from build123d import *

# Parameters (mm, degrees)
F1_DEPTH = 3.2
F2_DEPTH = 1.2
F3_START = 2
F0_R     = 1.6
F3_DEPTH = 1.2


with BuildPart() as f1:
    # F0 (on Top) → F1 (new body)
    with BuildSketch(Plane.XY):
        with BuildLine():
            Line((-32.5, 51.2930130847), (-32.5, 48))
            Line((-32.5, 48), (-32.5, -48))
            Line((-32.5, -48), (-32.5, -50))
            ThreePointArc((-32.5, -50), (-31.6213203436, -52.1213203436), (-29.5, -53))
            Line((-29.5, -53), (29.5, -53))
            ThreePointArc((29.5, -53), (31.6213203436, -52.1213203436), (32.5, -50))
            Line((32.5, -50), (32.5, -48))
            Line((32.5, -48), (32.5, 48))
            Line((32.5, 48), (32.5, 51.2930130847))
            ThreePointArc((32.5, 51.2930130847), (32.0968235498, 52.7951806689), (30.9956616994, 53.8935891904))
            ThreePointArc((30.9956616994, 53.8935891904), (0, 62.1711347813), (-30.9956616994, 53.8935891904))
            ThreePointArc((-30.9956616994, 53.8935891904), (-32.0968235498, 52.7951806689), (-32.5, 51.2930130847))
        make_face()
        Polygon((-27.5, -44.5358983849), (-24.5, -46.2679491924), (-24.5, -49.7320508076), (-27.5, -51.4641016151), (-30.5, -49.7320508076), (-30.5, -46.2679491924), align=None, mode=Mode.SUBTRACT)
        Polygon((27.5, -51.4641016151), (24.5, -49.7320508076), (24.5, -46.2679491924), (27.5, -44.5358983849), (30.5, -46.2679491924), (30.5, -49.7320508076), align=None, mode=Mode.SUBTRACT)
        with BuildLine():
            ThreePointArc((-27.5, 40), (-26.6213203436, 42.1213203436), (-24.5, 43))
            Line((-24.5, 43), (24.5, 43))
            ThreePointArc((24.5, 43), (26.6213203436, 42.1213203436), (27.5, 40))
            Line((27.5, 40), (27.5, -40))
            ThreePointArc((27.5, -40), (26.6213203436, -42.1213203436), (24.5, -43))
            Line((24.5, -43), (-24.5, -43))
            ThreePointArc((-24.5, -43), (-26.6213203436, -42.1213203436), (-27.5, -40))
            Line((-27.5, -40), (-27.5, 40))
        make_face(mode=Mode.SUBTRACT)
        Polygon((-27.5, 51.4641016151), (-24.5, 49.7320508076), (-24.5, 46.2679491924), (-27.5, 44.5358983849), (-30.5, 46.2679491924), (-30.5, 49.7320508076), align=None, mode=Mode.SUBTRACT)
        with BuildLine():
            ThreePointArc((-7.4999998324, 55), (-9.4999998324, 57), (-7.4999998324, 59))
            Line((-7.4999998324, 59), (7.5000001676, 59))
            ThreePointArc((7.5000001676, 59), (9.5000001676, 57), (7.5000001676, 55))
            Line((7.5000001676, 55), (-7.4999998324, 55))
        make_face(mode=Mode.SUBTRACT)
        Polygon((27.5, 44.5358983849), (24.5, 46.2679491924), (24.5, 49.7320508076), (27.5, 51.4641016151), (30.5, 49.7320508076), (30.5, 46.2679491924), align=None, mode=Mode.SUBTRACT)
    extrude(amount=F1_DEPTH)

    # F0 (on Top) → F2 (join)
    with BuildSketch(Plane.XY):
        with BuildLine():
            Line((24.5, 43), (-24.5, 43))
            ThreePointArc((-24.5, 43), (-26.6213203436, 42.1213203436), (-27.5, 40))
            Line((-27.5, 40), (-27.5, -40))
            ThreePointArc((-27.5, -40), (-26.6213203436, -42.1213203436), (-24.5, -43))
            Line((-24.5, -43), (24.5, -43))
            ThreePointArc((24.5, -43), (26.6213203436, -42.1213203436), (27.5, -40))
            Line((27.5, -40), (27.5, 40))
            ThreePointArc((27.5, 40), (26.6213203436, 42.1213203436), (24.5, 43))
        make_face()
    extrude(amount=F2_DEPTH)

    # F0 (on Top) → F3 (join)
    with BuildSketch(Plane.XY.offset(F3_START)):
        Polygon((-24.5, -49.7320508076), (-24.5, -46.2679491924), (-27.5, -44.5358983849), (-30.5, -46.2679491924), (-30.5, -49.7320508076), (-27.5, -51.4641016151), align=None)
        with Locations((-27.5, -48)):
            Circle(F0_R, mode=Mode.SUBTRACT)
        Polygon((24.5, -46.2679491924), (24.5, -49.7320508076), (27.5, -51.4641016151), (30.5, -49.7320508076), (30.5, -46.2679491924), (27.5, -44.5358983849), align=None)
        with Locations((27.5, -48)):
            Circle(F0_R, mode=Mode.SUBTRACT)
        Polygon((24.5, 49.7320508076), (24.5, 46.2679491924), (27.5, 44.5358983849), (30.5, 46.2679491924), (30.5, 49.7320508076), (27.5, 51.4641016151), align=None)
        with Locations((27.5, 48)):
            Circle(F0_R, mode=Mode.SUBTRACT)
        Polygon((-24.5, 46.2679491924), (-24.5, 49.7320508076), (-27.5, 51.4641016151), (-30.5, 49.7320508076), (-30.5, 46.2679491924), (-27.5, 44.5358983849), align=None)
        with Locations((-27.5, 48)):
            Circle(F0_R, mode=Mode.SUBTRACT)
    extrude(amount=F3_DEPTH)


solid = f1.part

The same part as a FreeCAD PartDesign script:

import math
import FreeCAD as App
import Part
import Sketcher
Q = App.Units.Quantity

doc = App.newDocument("Part")
body = doc.addObject("PartDesign::Body", "Body")

# Sketch on XY plane
sketch1 = doc.addObject("Sketcher::SketchObject", "Sketch")
body.addObject(sketch1)
sketch1.AttachmentSupport = (doc.XY_Plane, [""])
sketch1.MapMode = "FlatFace"
sketch1.addGeometry([
    Part.LineSegment(App.Vector(-32.5, 51.3, 0), App.Vector(-32.5, -50, 0)),  # 0
    Part.ArcOfCircle(Part.Circle(App.Vector(-29.5, -50, 0), App.Vector(0, 0, 1), 3), math.radians(180), math.radians(270)),  # 1
    Part.LineSegment(App.Vector(-29.5, -53, 0), App.Vector(29.5, -53, 0)),  # 2
    Part.ArcOfCircle(Part.Circle(App.Vector(29.5, -50, 0), App.Vector(0, 0, 1), 3), math.radians(-90), math.radians(0)),  # 3
    Part.LineSegment(App.Vector(32.5, -50, 0), App.Vector(32.5, 51.3, 0)),  # 4
    Part.ArcOfCircle(Part.Circle(App.Vector(29.5, 51.3, 0), App.Vector(0, 0, 1), 3), math.radians(0), math.radians(60)),  # 5
    Part.ArcOfCircle(Part.Circle(App.Vector(0, 0, 0), App.Vector(0, 0, 1), 62.2), math.radians(60), math.radians(120)),  # 6
    Part.ArcOfCircle(Part.Circle(App.Vector(-29.5, 51.3, 0), App.Vector(0, 0, 1), 3), math.radians(120), math.radians(180)),  # 7
    Part.LineSegment(App.Vector(-30.5, -46.3, 0), App.Vector(-27.5, -44.5, 0)),  # 8
    Part.LineSegment(App.Vector(-27.5, -44.5, 0), App.Vector(-24.5, -46.3, 0)),  # 9
    Part.LineSegment(App.Vector(-24.5, -46.3, 0), App.Vector(-24.5, -49.7, 0)),  # 10
    Part.LineSegment(App.Vector(-24.5, -49.7, 0), App.Vector(-27.5, -51.5, 0)),  # 11
    Part.LineSegment(App.Vector(-27.5, -51.5, 0), App.Vector(-30.5, -49.7, 0)),  # 12
    Part.LineSegment(App.Vector(-30.5, -49.7, 0), App.Vector(-30.5, -46.3, 0)),  # 13
    Part.LineSegment(App.Vector(30.5, -49.7, 0), App.Vector(27.5, -51.5, 0)),  # 14
    Part.LineSegment(App.Vector(27.5, -51.5, 0), App.Vector(24.5, -49.7, 0)),  # 15
    Part.LineSegment(App.Vector(24.5, -49.7, 0), App.Vector(24.5, -46.3, 0)),  # 16
    Part.LineSegment(App.Vector(24.5, -46.3, 0), App.Vector(27.5, -44.5, 0)),  # 17
    Part.LineSegment(App.Vector(27.5, -44.5, 0), App.Vector(30.5, -46.3, 0)),  # 18
    Part.LineSegment(App.Vector(30.5, -46.3, 0), App.Vector(30.5, -49.7, 0)),  # 19
    Part.LineSegment(App.Vector(-27.5, -40, 0), App.Vector(-27.5, 40, 0)),  # 20
    Part.ArcOfCircle(Part.Circle(App.Vector(-24.5, 40, 0), App.Vector(0, 0, 1), 3), math.radians(90), math.radians(180)),  # 21
    Part.LineSegment(App.Vector(-24.5, 43, 0), App.Vector(24.5, 43, 0)),  # 22
    Part.ArcOfCircle(Part.Circle(App.Vector(24.5, 40, 0), App.Vector(0, 0, 1), 3), math.radians(0), math.radians(90)),  # 23
    Part.LineSegment(App.Vector(27.5, 40, 0), App.Vector(27.5, -40, 0)),  # 24
    Part.ArcOfCircle(Part.Circle(App.Vector(24.5, -40, 0), App.Vector(0, 0, 1), 3), math.radians(-90), math.radians(0)),  # 25
    Part.LineSegment(App.Vector(24.5, -43, 0), App.Vector(-24.5, -43, 0)),  # 26
    Part.ArcOfCircle(Part.Circle(App.Vector(-24.5, -40, 0), App.Vector(0, 0, 1), 3), math.radians(180), math.radians(270)),  # 27
    Part.LineSegment(App.Vector(-30.5, 49.7, 0), App.Vector(-27.5, 51.5, 0)),  # 28
    Part.LineSegment(App.Vector(-27.5, 51.5, 0), App.Vector(-24.5, 49.7, 0)),  # 29
    Part.LineSegment(App.Vector(-24.5, 49.7, 0), App.Vector(-24.5, 46.3, 0)),  # 30
    Part.LineSegment(App.Vector(-24.5, 46.3, 0), App.Vector(-27.5, 44.5, 0)),  # 31
    Part.LineSegment(App.Vector(-27.5, 44.5, 0), App.Vector(-30.5, 46.3, 0)),  # 32
    Part.LineSegment(App.Vector(-30.5, 46.3, 0), App.Vector(-30.5, 49.7, 0)),  # 33
    Part.LineSegment(App.Vector(7.5, 55, 0), App.Vector(-7.5, 55, 0)),  # 34
    Part.ArcOfCircle(Part.Circle(App.Vector(-7.5, 57, 0), App.Vector(0, 0, 1), 2), math.radians(90), math.radians(270)),  # 35
    Part.LineSegment(App.Vector(-7.5, 59, 0), App.Vector(7.5, 59, 0)),  # 36
    Part.ArcOfCircle(Part.Circle(App.Vector(7.5, 57, 0), App.Vector(0, 0, 1), 2), math.radians(-90), math.radians(90)),  # 37
    Part.LineSegment(App.Vector(30.5, 46.3, 0), App.Vector(27.5, 44.5, 0)),  # 38
    Part.LineSegment(App.Vector(27.5, 44.5, 0), App.Vector(24.5, 46.3, 0)),  # 39
    Part.LineSegment(App.Vector(24.5, 46.3, 0), App.Vector(24.5, 49.7, 0)),  # 40
    Part.LineSegment(App.Vector(24.5, 49.7, 0), App.Vector(27.5, 51.5, 0)),  # 41
    Part.LineSegment(App.Vector(27.5, 51.5, 0), App.Vector(30.5, 49.7, 0)),  # 42
    Part.LineSegment(App.Vector(30.5, 49.7, 0), App.Vector(30.5, 46.3, 0)),  # 43
], False)
sketch1.addConstraint([
    Sketcher.Constraint("Tangent", 0, 2, 1, 1),
    Sketcher.Constraint("Tangent", 1, 2, 2, 1),
    Sketcher.Constraint("Tangent", 2, 2, 3, 1),
    Sketcher.Constraint("Tangent", 3, 2, 4, 1),
    Sketcher.Constraint("Tangent", 4, 2, 5, 1),
    Sketcher.Constraint("Tangent", 5, 2, 6, 1),
    Sketcher.Constraint("Tangent", 6, 2, 7, 1),
    Sketcher.Constraint("Tangent", 7, 2, 0, 1),
    Sketcher.Constraint("Coincident", 8, 2, 9, 1),
    Sketcher.Constraint("Coincident", 9, 2, 10, 1),
    Sketcher.Constraint("Coincident", 10, 2, 11, 1),
    Sketcher.Constraint("Coincident", 11, 2, 12, 1),
    Sketcher.Constraint("Coincident", 12, 2, 13, 1),
    Sketcher.Constraint("Coincident", 13, 2, 8, 1),
    Sketcher.Constraint("Coincident", 14, 2, 15, 1),
    Sketcher.Constraint("Coincident", 15, 2, 16, 1),
    Sketcher.Constraint("Coincident", 16, 2, 17, 1),
    Sketcher.Constraint("Coincident", 17, 2, 18, 1),
    Sketcher.Constraint("Coincident", 18, 2, 19, 1),
    Sketcher.Constraint("Coincident", 19, 2, 14, 1),
    Sketcher.Constraint("Tangent", 20, 2, 21, 2),
    Sketcher.Constraint("Tangent", 21, 1, 22, 1),
    Sketcher.Constraint("Tangent", 22, 2, 23, 2),
    Sketcher.Constraint("Tangent", 23, 1, 24, 1),
    Sketcher.Constraint("Tangent", 24, 2, 25, 2),
    Sketcher.Constraint("Tangent", 25, 1, 26, 1),
    Sketcher.Constraint("Tangent", 26, 2, 27, 2),
    Sketcher.Constraint("Tangent", 27, 1, 20, 1),
    Sketcher.Constraint("Coincident", 28, 2, 29, 1),
    Sketcher.Constraint("Coincident", 29, 2, 30, 1),
    Sketcher.Constraint("Coincident", 30, 2, 31, 1),
    Sketcher.Constraint("Coincident", 31, 2, 32, 1),
    Sketcher.Constraint("Coincident", 32, 2, 33, 1),
    Sketcher.Constraint("Coincident", 33, 2, 28, 1),
    Sketcher.Constraint("Tangent", 34, 2, 35, 2),
    Sketcher.Constraint("Tangent", 35, 1, 36, 1),
    Sketcher.Constraint("Tangent", 36, 2, 37, 2),
    Sketcher.Constraint("Tangent", 37, 1, 34, 1),
    Sketcher.Constraint("Coincident", 38, 2, 39, 1),
    Sketcher.Constraint("Coincident", 39, 2, 40, 1),
    Sketcher.Constraint("Coincident", 40, 2, 41, 1),
    Sketcher.Constraint("Coincident", 41, 2, 42, 1),
    Sketcher.Constraint("Coincident", 42, 2, 43, 1),
    Sketcher.Constraint("Coincident", 43, 2, 38, 1),
    Sketcher.Constraint("Vertical", 0),
    Sketcher.Constraint("Horizontal", 2),
    Sketcher.Constraint("Vertical", 4),
    Sketcher.Constraint("Vertical", 10),
    Sketcher.Constraint("Vertical", 13),
    Sketcher.Constraint("Vertical", 16),
    Sketcher.Constraint("Vertical", 19),
    Sketcher.Constraint("Vertical", 20),
    Sketcher.Constraint("Horizontal", 22),
    Sketcher.Constraint("Vertical", 24),
    Sketcher.Constraint("Horizontal", 26),
    Sketcher.Constraint("Vertical", 30),
    Sketcher.Constraint("Vertical", 33),
    Sketcher.Constraint("Horizontal", 34),
    Sketcher.Constraint("Horizontal", 36),
    Sketcher.Constraint("Vertical", 40),
    Sketcher.Constraint("Vertical", 43),
    Sketcher.Constraint("Coincident", 6, 3, -1, 1),
    Sketcher.Constraint("Equal", 1, 3),
    Sketcher.Constraint("Equal", 3, 5),
    Sketcher.Constraint("Equal", 5, 7),
    Sketcher.Constraint("Equal", 7, 21),
    Sketcher.Constraint("Equal", 21, 23),
    Sketcher.Constraint("Equal", 23, 25),
    Sketcher.Constraint("Equal", 25, 27),
    Sketcher.Constraint("Symmetric", 21, 3, 25, 3, -1, 1),
    Sketcher.Constraint("Symmetric", 14, 2, 28, 2, -1, 1),
    Sketcher.Constraint("Symmetric", 15, 2, 29, 2, -1, 1),
    Sketcher.Constraint("Symmetric", 17, 2, 31, 2, -1, 1),
    Sketcher.Constraint("Symmetric", 18, 2, 32, 2, -1, 1),
    Sketcher.Constraint("Symmetric", 8, 2, 38, 2, -1, 1),
    Sketcher.Constraint("Symmetric", 9, 2, 39, 2, -1, 1),
    Sketcher.Constraint("Symmetric", 11, 2, 41, 2, -1, 1),
    Sketcher.Constraint("Symmetric", 12, 2, 42, 2, -1, 1),
    Sketcher.Constraint("Symmetric", 11, 2, 14, 2, -2),
    Sketcher.Constraint("Symmetric", 10, 2, 15, 2, -2),
    Sketcher.Constraint("Symmetric", 8, 2, 17, 2, -2),
    Sketcher.Constraint("Symmetric", 13, 2, 18, 2, -2),
    Sketcher.Constraint("Parallel", 8, 11),
    Sketcher.Constraint("Parallel", 9, 12),
    Sketcher.Constraint("Parallel", 11, 14),
    Sketcher.Constraint("Parallel", 12, 15),
    Sketcher.Constraint("Parallel", 14, 17),
    Sketcher.Constraint("Parallel", 17, 28),
    Sketcher.Constraint("Parallel", 28, 31),
    Sketcher.Constraint("Parallel", 31, 38),
    Sketcher.Constraint("Parallel", 38, 41),
    Sketcher.Constraint("Horizontal", 5, 3, 7, 3),
    Sketcher.Constraint("Horizontal", 10, 2, 12, 2),
    Sketcher.Constraint("Horizontal", 9, 2, 13, 2),
    Sketcher.Constraint("Vertical", 27, 3, 9, 2),
    Sketcher.Constraint("Vertical", 11, 2, 20, 2),
    Sketcher.Constraint("Radius", 1, Q("3 mm")),
    Sketcher.Constraint("Radius", 35, Q("2 mm")),
    Sketcher.Constraint("DistanceX", 2, 1, 2, 2, Q("59 mm")),
    Sketcher.Constraint("DistanceX", 22, 1, 22, 2, Q("49 mm")),
    Sketcher.Constraint("DistanceX", 34, 2, 34, 1, Q("15 mm")),
    Sketcher.Constraint("DistanceY", 20, 1, 20, 2, Q("80 mm")),
    Sketcher.Constraint("Angle", 8, Q("30 deg")),
    Sketcher.Constraint("DistanceY", 1, 3, -1, 1, Q("50 mm")),
    Sketcher.Constraint("DistanceY", -1, 1, 35, 3, Q("57 mm")),
    Sketcher.Constraint("DistanceX", 7, 3, 35, 3, Q("22 mm")),
    Sketcher.Constraint("DistanceY", 10, 2, 10, 1, Q("3.464102 mm")),
    Sketcher.Constraint("Radius", 6, Q("62.171135 mm")),
    Sketcher.Constraint("DistanceY", 8, 2, -1, 1, Q("44.535898 mm")),
])
pad1 = doc.addObject("PartDesign::Pad", "Pad")
body.addObject(pad1)
pad1.Profile = sketch1
pad1.Length = 3.2

# Sketch on XY plane
sketch2 = doc.addObject("Sketcher::SketchObject", "Sketch001")
body.addObject(sketch2)
sketch2.AttachmentSupport = (doc.XY_Plane, [""])
sketch2.MapMode = "FlatFace"
sketch2.addGeometry([
    Part.LineSegment(App.Vector(24.5, 43, 0), App.Vector(-24.5, 43, 0)),  # 0
    Part.ArcOfCircle(Part.Circle(App.Vector(-24.5, 40, 0), App.Vector(0, 0, 1), 3), math.radians(90), math.radians(180)),  # 1
    Part.LineSegment(App.Vector(-27.5, 40, 0), App.Vector(-27.5, -40, 0)),  # 2
    Part.ArcOfCircle(Part.Circle(App.Vector(-24.5, -40, 0), App.Vector(0, 0, 1), 3), math.radians(180), math.radians(270)),  # 3
    Part.LineSegment(App.Vector(-24.5, -43, 0), App.Vector(24.5, -43, 0)),  # 4
    Part.ArcOfCircle(Part.Circle(App.Vector(24.5, -40, 0), App.Vector(0, 0, 1), 3), math.radians(-90), math.radians(0)),  # 5
    Part.LineSegment(App.Vector(27.5, -40, 0), App.Vector(27.5, 40, 0)),  # 6
    Part.ArcOfCircle(Part.Circle(App.Vector(24.5, 40, 0), App.Vector(0, 0, 1), 3), math.radians(0), math.radians(90)),  # 7
], False)
sketch2.addConstraint([
    Sketcher.Constraint("Tangent", 0, 2, 1, 1),
    Sketcher.Constraint("Tangent", 1, 2, 2, 1),
    Sketcher.Constraint("Tangent", 2, 2, 3, 1),
    Sketcher.Constraint("Tangent", 3, 2, 4, 1),
    Sketcher.Constraint("Tangent", 4, 2, 5, 1),
    Sketcher.Constraint("Tangent", 5, 2, 6, 1),
    Sketcher.Constraint("Tangent", 6, 2, 7, 1),
    Sketcher.Constraint("Tangent", 7, 2, 0, 1),
    Sketcher.Constraint("Horizontal", 0),
    Sketcher.Constraint("Vertical", 2),
    Sketcher.Constraint("Horizontal", 4),
    Sketcher.Constraint("Vertical", 6),
    Sketcher.Constraint("Equal", 1, 3),
    Sketcher.Constraint("Equal", 3, 5),
    Sketcher.Constraint("Equal", 5, 7),
    Sketcher.Constraint("Symmetric", 1, 3, 5, 3, -1, 1),
    Sketcher.Constraint("Radius", 1, Q("3 mm")),
    Sketcher.Constraint("DistanceX", 0, 2, 0, 1, Q("49 mm")),
    Sketcher.Constraint("DistanceY", 2, 2, 2, 1, Q("80 mm")),
])
pad2 = doc.addObject("PartDesign::Pad", "Pad001")
body.addObject(pad2)
pad2.Profile = sketch2
pad2.Length = 1.2

# Sketch on XY plane
sketch3 = doc.addObject("Sketcher::SketchObject", "Sketch002")
body.addObject(sketch3)
sketch3.AttachmentSupport = (doc.XY_Plane, [""])
sketch3.MapMode = "FlatFace"
sketch3.AttachmentOffset = App.Placement(App.Vector(0, 0, 2), App.Rotation())
sketch3.addGeometry([
    Part.LineSegment(App.Vector(-24.5, -49.7, 0), App.Vector(-24.5, -46.3, 0)),  # 0
    Part.LineSegment(App.Vector(-24.5, -46.3, 0), App.Vector(-27.5, -44.5, 0)),  # 1
    Part.LineSegment(App.Vector(-27.5, -44.5, 0), App.Vector(-30.5, -46.3, 0)),  # 2
    Part.LineSegment(App.Vector(-30.5, -46.3, 0), App.Vector(-30.5, -49.7, 0)),  # 3
    Part.LineSegment(App.Vector(-30.5, -49.7, 0), App.Vector(-27.5, -51.5, 0)),  # 4
    Part.LineSegment(App.Vector(-27.5, -51.5, 0), App.Vector(-24.5, -49.7, 0)),  # 5
    Part.Circle(App.Vector(-27.5, -48, 0), App.Vector(0, 0, 1), 1.6),  # 6
    Part.LineSegment(App.Vector(24.5, -46.3, 0), App.Vector(24.5, -49.7, 0)),  # 7
    Part.LineSegment(App.Vector(24.5, -49.7, 0), App.Vector(27.5, -51.5, 0)),  # 8
    Part.LineSegment(App.Vector(27.5, -51.5, 0), App.Vector(30.5, -49.7, 0)),  # 9
    Part.LineSegment(App.Vector(30.5, -49.7, 0), App.Vector(30.5, -46.3, 0)),  # 10
    Part.LineSegment(App.Vector(30.5, -46.3, 0), App.Vector(27.5, -44.5, 0)),  # 11
    Part.LineSegment(App.Vector(27.5, -44.5, 0), App.Vector(24.5, -46.3, 0)),  # 12
    Part.Circle(App.Vector(27.5, -48, 0), App.Vector(0, 0, 1), 1.6),  # 13
    Part.LineSegment(App.Vector(24.5, 49.7, 0), App.Vector(24.5, 46.3, 0)),  # 14
    Part.LineSegment(App.Vector(24.5, 46.3, 0), App.Vector(27.5, 44.5, 0)),  # 15
    Part.LineSegment(App.Vector(27.5, 44.5, 0), App.Vector(30.5, 46.3, 0)),  # 16
    Part.LineSegment(App.Vector(30.5, 46.3, 0), App.Vector(30.5, 49.7, 0)),  # 17
    Part.LineSegment(App.Vector(30.5, 49.7, 0), App.Vector(27.5, 51.5, 0)),  # 18
    Part.LineSegment(App.Vector(27.5, 51.5, 0), App.Vector(24.5, 49.7, 0)),  # 19
    Part.Circle(App.Vector(27.5, 48, 0), App.Vector(0, 0, 1), 1.6),  # 20
    Part.LineSegment(App.Vector(-24.5, 46.3, 0), App.Vector(-24.5, 49.7, 0)),  # 21
    Part.LineSegment(App.Vector(-24.5, 49.7, 0), App.Vector(-27.5, 51.5, 0)),  # 22
    Part.LineSegment(App.Vector(-27.5, 51.5, 0), App.Vector(-30.5, 49.7, 0)),  # 23
    Part.LineSegment(App.Vector(-30.5, 49.7, 0), App.Vector(-30.5, 46.3, 0)),  # 24
    Part.LineSegment(App.Vector(-30.5, 46.3, 0), App.Vector(-27.5, 44.5, 0)),  # 25
    Part.LineSegment(App.Vector(-27.5, 44.5, 0), App.Vector(-24.5, 46.3, 0)),  # 26
    Part.Circle(App.Vector(-27.5, 48, 0), App.Vector(0, 0, 1), 1.6),  # 27
], False)
sketch3.addConstraint([
    Sketcher.Constraint("Coincident", 0, 2, 1, 1),
    Sketcher.Constraint("Coincident", 1, 2, 2, 1),
    Sketcher.Constraint("Coincident", 2, 2, 3, 1),
    Sketcher.Constraint("Coincident", 3, 2, 4, 1),
    Sketcher.Constraint("Coincident", 4, 2, 5, 1),
    Sketcher.Constraint("Coincident", 5, 2, 0, 1),
    Sketcher.Constraint("Coincident", 7, 2, 8, 1),
    Sketcher.Constraint("Coincident", 8, 2, 9, 1),
    Sketcher.Constraint("Coincident", 9, 2, 10, 1),
    Sketcher.Constraint("Coincident", 10, 2, 11, 1),
    Sketcher.Constraint("Coincident", 11, 2, 12, 1),
    Sketcher.Constraint("Coincident", 12, 2, 7, 1),
    Sketcher.Constraint("Coincident", 14, 2, 15, 1),
    Sketcher.Constraint("Coincident", 15, 2, 16, 1),
    Sketcher.Constraint("Coincident", 16, 2, 17, 1),
    Sketcher.Constraint("Coincident", 17, 2, 18, 1),
    Sketcher.Constraint("Coincident", 18, 2, 19, 1),
    Sketcher.Constraint("Coincident", 19, 2, 14, 1),
    Sketcher.Constraint("Coincident", 21, 2, 22, 1),
    Sketcher.Constraint("Coincident", 22, 2, 23, 1),
    Sketcher.Constraint("Coincident", 23, 2, 24, 1),
    Sketcher.Constraint("Coincident", 24, 2, 25, 1),
    Sketcher.Constraint("Coincident", 25, 2, 26, 1),
    Sketcher.Constraint("Coincident", 26, 2, 21, 1),
    Sketcher.Constraint("Vertical", 0),
    Sketcher.Constraint("Vertical", 3),
    Sketcher.Constraint("Vertical", 7),
    Sketcher.Constraint("Vertical", 10),
    Sketcher.Constraint("Vertical", 14),
    Sketcher.Constraint("Vertical", 17),
    Sketcher.Constraint("Vertical", 21),
    Sketcher.Constraint("Vertical", 24),
    Sketcher.Constraint("Equal", 6, 13),
    Sketcher.Constraint("Equal", 13, 20),
    Sketcher.Constraint("Equal", 20, 27),
    Sketcher.Constraint("Symmetric", 6, 3, 20, 3, -1, 1),
    Sketcher.Constraint("Symmetric", 13, 3, 27, 3, -1, 1),
    Sketcher.Constraint("Symmetric", 0, 2, 14, 2, -1, 1),
    Sketcher.Constraint("Symmetric", 1, 2, 15, 2, -1, 1),
    Sketcher.Constraint("Symmetric", 2, 2, 16, 2, -1, 1),
    Sketcher.Constraint("Symmetric", 4, 2, 18, 2, -1, 1),
    Sketcher.Constraint("Symmetric", 7, 2, 21, 2, -1, 1),
    Sketcher.Constraint("Symmetric", 8, 2, 22, 2, -1, 1),
    Sketcher.Constraint("Symmetric", 9, 2, 23, 2, -1, 1),
    Sketcher.Constraint("Symmetric", 11, 2, 25, 2, -1, 1),
    Sketcher.Constraint("Symmetric", 6, 3, 13, 3, -2),
    Sketcher.Constraint("Symmetric", 5, 2, 7, 2, -2),
    Sketcher.Constraint("Symmetric", 4, 2, 8, 2, -2),
    Sketcher.Constraint("Symmetric", 3, 2, 9, 2, -2),
    Sketcher.Constraint("Symmetric", 1, 2, 11, 2, -2),
    Sketcher.Constraint("Parallel", 1, 4),
    Sketcher.Constraint("Parallel", 2, 5),
    Sketcher.Constraint("Parallel", 4, 8),
    Sketcher.Constraint("Parallel", 8, 11),
    Sketcher.Constraint("Parallel", 9, 12),
    Sketcher.Constraint("Parallel", 15, 18),
    Sketcher.Constraint("Parallel", 16, 19),
    Sketcher.Constraint("Parallel", 22, 25),
    Sketcher.Constraint("Parallel", 23, 26),
    Sketcher.Constraint("Horizontal", 0, 2, 2, 2),
    Sketcher.Constraint("Horizontal", 3, 2, 5, 2),
    Sketcher.Constraint("Vertical", 27, 3, 1, 2),
    Sketcher.Constraint("Diameter", 6, Q("3.2 mm")),
    Sketcher.Constraint("Angle", 1, Q("150 deg")),
    Sketcher.Constraint("DistanceY", 6, 3, -1, 1, Q("48 mm")),
    Sketcher.Constraint("DistanceX", 6, 3, 13, 3, Q("55 mm")),
    Sketcher.Constraint("DistanceX", 6, 3, 0, 2, Q("3 mm")),
    Sketcher.Constraint("DistanceY", 0, 1, 0, 2, Q("3.464102 mm")),
    Sketcher.Constraint("DistanceY", 1, 2, -1, 1, Q("44.535898 mm")),
])
pad3 = doc.addObject("PartDesign::Pad", "Pad002")
body.addObject(pad3)
pad3.Profile = sketch3
pad3.Length = 1.2

doc.recompute()
